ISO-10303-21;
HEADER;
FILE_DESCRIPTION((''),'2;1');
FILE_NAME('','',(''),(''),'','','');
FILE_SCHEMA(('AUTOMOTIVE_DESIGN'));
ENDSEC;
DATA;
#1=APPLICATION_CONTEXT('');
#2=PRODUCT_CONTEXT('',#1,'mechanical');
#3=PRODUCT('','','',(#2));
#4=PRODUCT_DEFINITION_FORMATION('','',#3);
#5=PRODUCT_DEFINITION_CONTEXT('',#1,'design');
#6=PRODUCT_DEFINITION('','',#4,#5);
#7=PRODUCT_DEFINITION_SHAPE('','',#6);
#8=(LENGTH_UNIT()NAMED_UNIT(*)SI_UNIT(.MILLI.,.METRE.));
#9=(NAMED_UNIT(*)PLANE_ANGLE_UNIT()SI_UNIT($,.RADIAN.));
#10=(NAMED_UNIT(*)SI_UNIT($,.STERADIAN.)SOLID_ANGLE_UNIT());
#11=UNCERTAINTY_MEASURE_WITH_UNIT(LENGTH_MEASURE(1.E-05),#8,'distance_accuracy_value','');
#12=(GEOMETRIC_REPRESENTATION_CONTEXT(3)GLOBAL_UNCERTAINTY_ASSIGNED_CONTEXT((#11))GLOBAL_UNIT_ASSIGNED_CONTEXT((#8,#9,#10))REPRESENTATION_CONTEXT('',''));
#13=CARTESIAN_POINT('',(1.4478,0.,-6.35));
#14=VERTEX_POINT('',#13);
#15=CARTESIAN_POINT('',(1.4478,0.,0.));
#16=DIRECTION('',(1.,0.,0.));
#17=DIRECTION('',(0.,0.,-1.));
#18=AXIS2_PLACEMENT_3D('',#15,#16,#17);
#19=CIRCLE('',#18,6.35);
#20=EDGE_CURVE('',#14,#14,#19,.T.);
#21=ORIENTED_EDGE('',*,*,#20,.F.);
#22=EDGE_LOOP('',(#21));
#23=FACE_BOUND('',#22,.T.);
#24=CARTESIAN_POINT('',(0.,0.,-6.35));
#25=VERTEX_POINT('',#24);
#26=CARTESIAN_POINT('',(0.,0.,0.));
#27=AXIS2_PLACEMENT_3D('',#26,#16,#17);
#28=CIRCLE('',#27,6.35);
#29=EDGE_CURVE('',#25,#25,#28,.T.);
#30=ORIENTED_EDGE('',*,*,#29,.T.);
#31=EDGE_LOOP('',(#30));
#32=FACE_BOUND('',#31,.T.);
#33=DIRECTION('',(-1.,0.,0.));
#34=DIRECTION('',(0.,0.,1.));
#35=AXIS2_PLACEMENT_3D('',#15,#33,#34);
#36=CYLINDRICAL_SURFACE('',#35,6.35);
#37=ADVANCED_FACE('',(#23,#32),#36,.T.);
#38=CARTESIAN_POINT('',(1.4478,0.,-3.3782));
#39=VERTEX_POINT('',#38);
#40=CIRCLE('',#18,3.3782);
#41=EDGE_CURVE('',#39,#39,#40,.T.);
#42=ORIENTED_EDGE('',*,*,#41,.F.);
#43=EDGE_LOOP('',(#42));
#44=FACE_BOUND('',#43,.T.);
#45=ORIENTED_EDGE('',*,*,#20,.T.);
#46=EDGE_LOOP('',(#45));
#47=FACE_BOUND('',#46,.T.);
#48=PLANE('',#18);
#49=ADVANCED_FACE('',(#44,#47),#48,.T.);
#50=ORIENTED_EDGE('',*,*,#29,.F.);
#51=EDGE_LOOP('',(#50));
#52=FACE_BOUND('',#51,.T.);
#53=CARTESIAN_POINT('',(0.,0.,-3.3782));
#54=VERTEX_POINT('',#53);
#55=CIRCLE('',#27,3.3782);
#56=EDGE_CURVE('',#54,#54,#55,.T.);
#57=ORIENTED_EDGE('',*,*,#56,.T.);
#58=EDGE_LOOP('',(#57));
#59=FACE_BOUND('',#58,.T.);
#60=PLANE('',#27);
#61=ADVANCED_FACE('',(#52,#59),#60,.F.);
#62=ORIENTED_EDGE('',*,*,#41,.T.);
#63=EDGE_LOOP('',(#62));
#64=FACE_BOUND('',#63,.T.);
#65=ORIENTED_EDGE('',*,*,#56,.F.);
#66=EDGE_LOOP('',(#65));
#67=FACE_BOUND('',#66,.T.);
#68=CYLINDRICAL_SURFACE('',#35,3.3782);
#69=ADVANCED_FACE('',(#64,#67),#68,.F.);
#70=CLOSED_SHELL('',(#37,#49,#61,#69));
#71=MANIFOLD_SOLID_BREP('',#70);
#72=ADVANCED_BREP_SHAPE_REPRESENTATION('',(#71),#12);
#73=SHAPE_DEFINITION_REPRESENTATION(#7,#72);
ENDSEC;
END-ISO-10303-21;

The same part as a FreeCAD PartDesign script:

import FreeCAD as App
import Part
import Sketcher

V = App.Vector
Q = App.Units.Quantity

doc = App.newDocument("Part")
body = doc.addObject("PartDesign::Body", "Body")

# Sketch on YZ plane
sketch1 = body.newObject("Sketcher::SketchObject", "Sketch")
sketch1.AttachmentSupport = (doc.getObject("YZ_Plane"), [""])
sketch1.MapMode = "FlatFace"
sketch1.addGeometry([
    Part.Circle(V(0, 0, 0), V(0, 0, 1), 6.3),
    Part.Circle(V(0, 0, 0), V(0, 0, 1), 3.4),
], False)
sketch1.addConstraint([
    Sketcher.Constraint("Coincident", 0, 3, -1, 1),
    Sketcher.Constraint("Coincident", 1, 3, -1, 1),
    Sketcher.Constraint("Diameter", 0, Q("0.5 in")),
    Sketcher.Constraint("Diameter", 1, Q("0.266 in")),
])
pad1 = body.newObject("PartDesign::Pad", "Pad")
pad1.Profile = sketch1
pad1.Length = Q("0.057 in")

doc.recompute()
